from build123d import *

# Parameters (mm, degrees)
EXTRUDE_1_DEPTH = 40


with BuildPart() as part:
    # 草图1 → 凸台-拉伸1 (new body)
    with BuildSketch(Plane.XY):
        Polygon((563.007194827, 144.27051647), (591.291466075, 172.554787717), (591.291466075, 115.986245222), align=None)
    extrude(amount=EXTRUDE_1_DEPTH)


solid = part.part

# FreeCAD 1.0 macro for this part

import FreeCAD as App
import Part
import Sketcher
from FreeCAD import Vector

doc = App.newDocument("Part")
body = doc.addObject("PartDesign::Body", "Body")

# Sketch on XY plane
sketch1 = body.newObject("Sketcher::SketchObject", "Sketch")
sketch1.AttachmentSupport = (doc.getObject("XY_Plane"), [""])
sketch1.MapMode = "FlatFace"
sketch1.addGeometry([
    Part.LineSegment(Vector(591, 173, 0), Vector(563, 144, 0)),
    Part.LineSegment(Vector(563, 144, 0), Vector(591, 116, 0)),
    Part.LineSegment(Vector(591, 116, 0), Vector(591, 173, 0)),
], False)
sketch1.addConstraint([
    Sketcher.Constraint("Coincident", 0, 2, 1, 1),
    Sketcher.Constraint("Coincident", 1, 2, 2, 1),
    Sketcher.Constraint("Coincident", 2, 2, 0, 1),
    Sketcher.Constraint("Vertical", 2),
    Sketcher.Constraint("Perpendicular", 0, 1),
    Sketcher.Constraint("Equal", 0, 1),
    Sketcher.Constraint("Distance", 0, 40.0),
    Sketcher.Constraint("DistanceX", -1, 1, 0, 2, 563.007195),
    Sketcher.Constraint("DistanceY", -1, 1, 0, 2, 144.270516),
])
pad1 = body.newObject("PartDesign::Pad", "Pad")
pad1.Profile = sketch1
pad1.Length = 40

doc.recompute()
